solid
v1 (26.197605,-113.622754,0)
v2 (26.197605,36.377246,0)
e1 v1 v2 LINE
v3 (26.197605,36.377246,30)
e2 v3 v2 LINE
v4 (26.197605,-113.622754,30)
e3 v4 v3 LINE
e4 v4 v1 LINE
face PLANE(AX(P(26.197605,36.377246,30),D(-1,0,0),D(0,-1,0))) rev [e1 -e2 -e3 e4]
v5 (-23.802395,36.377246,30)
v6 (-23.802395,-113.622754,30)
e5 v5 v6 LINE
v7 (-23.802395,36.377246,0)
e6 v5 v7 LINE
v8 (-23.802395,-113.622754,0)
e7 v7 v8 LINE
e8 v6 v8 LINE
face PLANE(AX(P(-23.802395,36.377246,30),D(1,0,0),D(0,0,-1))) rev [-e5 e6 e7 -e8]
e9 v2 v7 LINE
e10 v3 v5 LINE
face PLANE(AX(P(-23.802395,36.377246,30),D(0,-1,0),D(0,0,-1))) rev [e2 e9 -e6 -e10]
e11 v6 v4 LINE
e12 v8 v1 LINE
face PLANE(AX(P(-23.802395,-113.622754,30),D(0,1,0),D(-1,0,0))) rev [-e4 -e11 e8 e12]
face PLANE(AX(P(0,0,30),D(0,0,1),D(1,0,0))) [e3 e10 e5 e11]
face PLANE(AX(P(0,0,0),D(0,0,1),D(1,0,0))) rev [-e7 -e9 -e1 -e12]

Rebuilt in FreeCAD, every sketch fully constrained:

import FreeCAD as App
import Part
import Sketcher
from FreeCAD import Vector

doc = App.newDocument("Part")
body = doc.addObject("PartDesign::Body", "Body")

# Sketch on XY plane
sketch1 = body.newObject("Sketcher::SketchObject", "Sketch")
sketch1.AttachmentSupport = (doc.getObject("XY_Plane"), [""])
sketch1.MapMode = "FlatFace"
sketch1.addGeometry([
    Part.LineSegment(Vector(-24, 36, 0), Vector(-24, -114, 0)),
    Part.LineSegment(Vector(-24, -114, 0), Vector(26, -114, 0)),
    Part.LineSegment(Vector(26, -114, 0), Vector(26, 36, 0)),
    Part.LineSegment(Vector(26, 36, 0), Vector(-24, 36, 0)),
], False)
sketch1.addConstraint([
    Sketcher.Constraint("Coincident", 0, 2, 1, 1),
    Sketcher.Constraint("Coincident", 1, 2, 2, 1),
    Sketcher.Constraint("Coincident", 2, 2, 3, 1),
    Sketcher.Constraint("Coincident", 3, 2, 0, 1),
    Sketcher.Constraint("Vertical", 0),
    Sketcher.Constraint("Horizontal", 1),
    Sketcher.Constraint("Vertical", 2),
    Sketcher.Constraint("Horizontal", 3),
    Sketcher.Constraint("DistanceX", 1, 1, 1, 2, 50.0),
    Sketcher.Constraint("DistanceY", 0, 2, 0, 1, 150.0),
    Sketcher.Constraint("DistanceX", 0, 2, -1, 1, 23.802395),
    Sketcher.Constraint("DistanceY", 0, 2, -1, 1, 113.622754),
])
pad1 = body.newObject("PartDesign::Pad", "Pad")
pad1.Profile = sketch1
pad1.Length = 30

doc.recompute()
